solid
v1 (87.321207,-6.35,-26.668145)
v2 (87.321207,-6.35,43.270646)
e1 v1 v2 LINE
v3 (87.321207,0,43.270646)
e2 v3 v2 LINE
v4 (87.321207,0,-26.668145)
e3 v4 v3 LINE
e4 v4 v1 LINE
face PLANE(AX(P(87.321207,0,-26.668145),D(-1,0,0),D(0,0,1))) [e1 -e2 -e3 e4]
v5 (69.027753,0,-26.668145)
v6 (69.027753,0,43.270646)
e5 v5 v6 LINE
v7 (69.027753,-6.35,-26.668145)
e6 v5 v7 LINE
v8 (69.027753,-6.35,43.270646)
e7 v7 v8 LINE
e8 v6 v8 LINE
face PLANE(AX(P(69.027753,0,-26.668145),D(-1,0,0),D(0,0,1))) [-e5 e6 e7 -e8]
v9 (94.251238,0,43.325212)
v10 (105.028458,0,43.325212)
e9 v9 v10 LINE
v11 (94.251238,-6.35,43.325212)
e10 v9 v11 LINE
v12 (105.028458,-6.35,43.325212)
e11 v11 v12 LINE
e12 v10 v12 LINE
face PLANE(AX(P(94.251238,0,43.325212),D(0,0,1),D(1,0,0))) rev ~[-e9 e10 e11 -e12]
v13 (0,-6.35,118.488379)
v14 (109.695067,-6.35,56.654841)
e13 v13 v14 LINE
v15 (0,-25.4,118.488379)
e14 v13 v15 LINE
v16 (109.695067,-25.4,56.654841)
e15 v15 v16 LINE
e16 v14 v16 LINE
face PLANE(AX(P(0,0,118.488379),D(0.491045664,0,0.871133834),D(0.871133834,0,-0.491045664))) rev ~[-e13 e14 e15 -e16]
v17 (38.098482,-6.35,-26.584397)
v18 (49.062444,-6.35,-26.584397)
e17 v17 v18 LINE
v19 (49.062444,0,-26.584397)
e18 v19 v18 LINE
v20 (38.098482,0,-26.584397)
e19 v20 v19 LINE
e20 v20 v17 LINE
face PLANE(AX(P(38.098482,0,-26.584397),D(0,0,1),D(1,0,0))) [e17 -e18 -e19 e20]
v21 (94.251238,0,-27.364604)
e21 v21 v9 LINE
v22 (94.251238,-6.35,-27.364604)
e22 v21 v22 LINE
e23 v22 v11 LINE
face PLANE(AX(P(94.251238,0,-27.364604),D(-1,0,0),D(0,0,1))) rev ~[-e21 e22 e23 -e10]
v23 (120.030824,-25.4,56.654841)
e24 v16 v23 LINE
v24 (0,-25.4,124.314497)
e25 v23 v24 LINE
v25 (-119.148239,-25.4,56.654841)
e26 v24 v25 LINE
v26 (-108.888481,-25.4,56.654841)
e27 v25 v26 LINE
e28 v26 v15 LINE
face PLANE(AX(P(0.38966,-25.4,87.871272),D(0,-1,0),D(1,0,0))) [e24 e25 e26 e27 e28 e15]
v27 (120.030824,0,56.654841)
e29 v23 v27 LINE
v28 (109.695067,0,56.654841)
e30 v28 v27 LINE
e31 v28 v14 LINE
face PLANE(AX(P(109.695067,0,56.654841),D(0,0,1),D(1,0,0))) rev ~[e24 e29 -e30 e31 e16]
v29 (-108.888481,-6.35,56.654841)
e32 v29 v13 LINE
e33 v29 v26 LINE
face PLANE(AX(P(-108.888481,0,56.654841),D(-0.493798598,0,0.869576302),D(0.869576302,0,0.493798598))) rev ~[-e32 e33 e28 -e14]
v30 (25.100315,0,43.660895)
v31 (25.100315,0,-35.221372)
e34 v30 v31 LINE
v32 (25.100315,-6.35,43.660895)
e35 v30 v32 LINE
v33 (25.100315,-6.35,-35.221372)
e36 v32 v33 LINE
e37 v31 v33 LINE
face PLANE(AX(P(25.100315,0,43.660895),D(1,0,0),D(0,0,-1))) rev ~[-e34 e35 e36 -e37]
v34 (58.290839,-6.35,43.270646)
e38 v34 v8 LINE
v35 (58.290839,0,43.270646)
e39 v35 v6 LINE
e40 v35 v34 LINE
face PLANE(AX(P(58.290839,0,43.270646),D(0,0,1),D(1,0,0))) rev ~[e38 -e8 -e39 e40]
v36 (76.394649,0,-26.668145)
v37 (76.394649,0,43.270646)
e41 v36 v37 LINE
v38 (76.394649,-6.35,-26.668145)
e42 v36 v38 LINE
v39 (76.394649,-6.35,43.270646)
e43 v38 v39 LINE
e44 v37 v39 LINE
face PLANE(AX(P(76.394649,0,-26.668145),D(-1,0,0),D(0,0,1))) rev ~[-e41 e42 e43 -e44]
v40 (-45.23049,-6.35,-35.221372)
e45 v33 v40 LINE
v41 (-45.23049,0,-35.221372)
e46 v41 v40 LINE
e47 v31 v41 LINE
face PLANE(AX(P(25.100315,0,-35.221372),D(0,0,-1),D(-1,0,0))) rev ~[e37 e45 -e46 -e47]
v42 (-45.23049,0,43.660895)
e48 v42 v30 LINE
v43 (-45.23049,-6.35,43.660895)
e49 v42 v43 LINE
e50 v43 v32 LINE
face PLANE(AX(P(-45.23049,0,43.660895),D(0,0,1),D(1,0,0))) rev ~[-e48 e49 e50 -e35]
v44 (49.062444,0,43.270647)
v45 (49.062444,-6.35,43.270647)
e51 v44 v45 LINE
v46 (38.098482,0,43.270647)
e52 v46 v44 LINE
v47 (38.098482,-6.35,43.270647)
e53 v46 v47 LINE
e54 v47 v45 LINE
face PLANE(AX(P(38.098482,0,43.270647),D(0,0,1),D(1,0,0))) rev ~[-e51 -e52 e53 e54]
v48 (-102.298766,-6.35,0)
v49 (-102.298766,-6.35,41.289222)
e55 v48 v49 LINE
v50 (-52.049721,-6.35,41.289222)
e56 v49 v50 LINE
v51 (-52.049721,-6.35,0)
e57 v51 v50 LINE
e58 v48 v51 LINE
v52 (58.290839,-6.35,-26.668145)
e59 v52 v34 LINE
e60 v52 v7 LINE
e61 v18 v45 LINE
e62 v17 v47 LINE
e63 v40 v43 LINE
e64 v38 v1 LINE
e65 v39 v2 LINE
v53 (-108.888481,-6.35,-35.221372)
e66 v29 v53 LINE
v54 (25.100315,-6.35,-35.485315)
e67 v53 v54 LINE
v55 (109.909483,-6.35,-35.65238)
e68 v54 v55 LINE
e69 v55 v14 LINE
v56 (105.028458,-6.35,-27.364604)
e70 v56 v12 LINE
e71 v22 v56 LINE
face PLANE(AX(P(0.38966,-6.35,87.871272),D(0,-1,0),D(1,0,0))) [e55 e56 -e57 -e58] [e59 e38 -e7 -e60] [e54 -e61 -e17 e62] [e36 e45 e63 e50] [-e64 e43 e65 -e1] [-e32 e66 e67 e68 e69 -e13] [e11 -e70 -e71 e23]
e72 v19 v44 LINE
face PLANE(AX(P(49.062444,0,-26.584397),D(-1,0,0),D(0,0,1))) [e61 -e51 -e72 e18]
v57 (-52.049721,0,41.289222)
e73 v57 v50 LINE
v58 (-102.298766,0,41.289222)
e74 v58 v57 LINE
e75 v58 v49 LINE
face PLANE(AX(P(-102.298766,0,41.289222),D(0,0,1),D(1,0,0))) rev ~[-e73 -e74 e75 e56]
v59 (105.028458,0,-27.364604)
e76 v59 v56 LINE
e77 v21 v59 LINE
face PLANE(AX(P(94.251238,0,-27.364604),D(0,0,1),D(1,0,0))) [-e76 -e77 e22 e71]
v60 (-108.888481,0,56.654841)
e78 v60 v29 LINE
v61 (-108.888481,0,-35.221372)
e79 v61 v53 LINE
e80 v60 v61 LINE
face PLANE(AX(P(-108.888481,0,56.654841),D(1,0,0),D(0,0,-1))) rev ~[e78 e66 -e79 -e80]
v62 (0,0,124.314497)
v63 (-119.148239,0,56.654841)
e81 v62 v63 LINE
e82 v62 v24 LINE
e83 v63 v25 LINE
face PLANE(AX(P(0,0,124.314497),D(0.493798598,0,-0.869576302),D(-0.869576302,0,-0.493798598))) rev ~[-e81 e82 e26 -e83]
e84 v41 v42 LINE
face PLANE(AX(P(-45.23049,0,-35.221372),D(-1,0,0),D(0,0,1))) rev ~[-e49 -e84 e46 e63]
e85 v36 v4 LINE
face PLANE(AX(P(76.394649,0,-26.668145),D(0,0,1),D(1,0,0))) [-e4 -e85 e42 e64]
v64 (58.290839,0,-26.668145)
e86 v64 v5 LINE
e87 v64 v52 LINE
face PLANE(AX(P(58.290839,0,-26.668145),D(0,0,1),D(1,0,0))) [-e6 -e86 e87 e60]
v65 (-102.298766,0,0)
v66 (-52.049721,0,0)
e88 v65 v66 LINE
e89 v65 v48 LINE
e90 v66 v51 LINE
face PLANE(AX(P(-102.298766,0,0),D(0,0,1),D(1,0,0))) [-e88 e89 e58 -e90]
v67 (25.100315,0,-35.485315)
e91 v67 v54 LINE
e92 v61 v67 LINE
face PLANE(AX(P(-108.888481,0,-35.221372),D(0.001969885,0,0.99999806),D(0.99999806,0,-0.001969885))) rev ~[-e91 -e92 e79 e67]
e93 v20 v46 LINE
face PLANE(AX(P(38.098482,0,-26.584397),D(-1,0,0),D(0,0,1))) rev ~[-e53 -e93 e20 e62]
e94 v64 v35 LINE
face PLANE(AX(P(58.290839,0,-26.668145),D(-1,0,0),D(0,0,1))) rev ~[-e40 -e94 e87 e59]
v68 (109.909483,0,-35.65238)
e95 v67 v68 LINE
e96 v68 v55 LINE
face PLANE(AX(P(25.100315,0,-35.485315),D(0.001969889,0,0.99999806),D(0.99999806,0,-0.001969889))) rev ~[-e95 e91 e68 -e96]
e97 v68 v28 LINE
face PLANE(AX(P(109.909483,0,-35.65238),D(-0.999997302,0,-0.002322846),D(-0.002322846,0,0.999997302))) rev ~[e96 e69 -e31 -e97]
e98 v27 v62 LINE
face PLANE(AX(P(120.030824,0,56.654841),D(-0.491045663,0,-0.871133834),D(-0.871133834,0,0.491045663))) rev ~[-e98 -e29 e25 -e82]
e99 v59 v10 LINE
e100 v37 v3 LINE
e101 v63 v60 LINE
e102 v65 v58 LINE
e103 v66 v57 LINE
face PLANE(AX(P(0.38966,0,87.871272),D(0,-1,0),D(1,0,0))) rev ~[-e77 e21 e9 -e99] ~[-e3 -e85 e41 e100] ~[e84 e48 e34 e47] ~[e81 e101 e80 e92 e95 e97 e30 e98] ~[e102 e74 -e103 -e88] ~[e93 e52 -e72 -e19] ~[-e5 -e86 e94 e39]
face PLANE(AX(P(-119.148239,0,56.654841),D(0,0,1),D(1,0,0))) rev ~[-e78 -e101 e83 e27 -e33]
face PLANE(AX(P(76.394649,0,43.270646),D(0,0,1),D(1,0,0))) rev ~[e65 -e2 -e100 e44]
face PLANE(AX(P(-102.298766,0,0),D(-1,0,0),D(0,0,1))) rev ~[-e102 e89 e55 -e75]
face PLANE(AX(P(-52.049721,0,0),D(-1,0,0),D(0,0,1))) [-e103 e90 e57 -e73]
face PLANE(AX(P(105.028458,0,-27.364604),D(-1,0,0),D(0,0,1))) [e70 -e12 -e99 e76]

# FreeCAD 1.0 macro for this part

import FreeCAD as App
import Part
import Sketcher

V = App.Vector
Q = App.Units.Quantity

doc = App.newDocument("Part")
body = doc.addObject("PartDesign::Body", "Body")

# Sketch on XZ plane
sketch1 = body.newObject("Sketcher::SketchObject", "Sketch")
sketch1.AttachmentSupport = (doc.getObject("XZ_Plane"), [""])
sketch1.MapMode = "FlatFace"
sketch1.addGeometry(Part.LineSegment(V(120, 57, 0), V(0, 124, 0)), False)
sketch1.addGeometry(Part.LineSegment(V(0, 124, 0), V(-119, 57, 0)), False)
sketch1.addGeometry(Part.LineSegment(V(-119, 57, 0), V(-109, 57, 0)), False)
sketch1.addGeometry(Part.LineSegment(V(-109, 57, 0), V(0, 118, 0)), False)
sketch1.addGeometry(Part.LineSegment(V(0, 118, 0), V(110, 57, 0)), False)
sketch1.addGeometry(Part.LineSegment(V(110, 57, 0), V(120, 57, 0)), False)
sketch1.addConstraint(Sketcher.Constraint("Coincident", 0, 2, 1, 1))
sketch1.addConstraint(Sketcher.Constraint("Coincident", 1, 2, 2, 1))
sketch1.addConstraint(Sketcher.Constraint("Coincident", 2, 2, 3, 1))
sketch1.addConstraint(Sketcher.Constraint("Coincident", 3, 2, 4, 1))
sketch1.addConstraint(Sketcher.Constraint("Coincident", 4, 2, 5, 1))
sketch1.addConstraint(Sketcher.Constraint("Coincident", 5, 2, 0, 1))
sketch1.addConstraint(Sketcher.Constraint("Horizontal", 2))
sketch1.addConstraint(Sketcher.Constraint("Horizontal", 5))
sketch1.addConstraint(Sketcher.Constraint("PointOnObject", 0, 2, -2))
sketch1.addConstraint(Sketcher.Constraint("PointOnObject", 3, 2, -2))
sketch1.addConstraint(Sketcher.Constraint("Parallel", 1, 3))
sketch1.addConstraint(Sketcher.Constraint("Parallel", 0, 4))
sketch1.addConstraint(Sketcher.Constraint("Horizontal", 2, 2, 4, 2))
sketch1.addConstraint(Sketcher.Constraint("DistanceX", 2, 1, 2, 2, 10.259758))
sketch1.addConstraint(Sketcher.Constraint("Distance", 1, 137.018728))
sketch1.addConstraint(Sketcher.Constraint("DistanceX", 5, 1, 5, 2, 10.335757))
sketch1.addConstraint(Sketcher.Constraint("DistanceX", 1, 2, -1, 1, 119.148239))
sketch1.addConstraint(Sketcher.Constraint("DistanceY", -1, 1, 1, 2, 56.654841))
pad1 = body.newObject("PartDesign::Pad", "Pad")
pad1.Profile = sketch1
pad1.Length = Q("1 in")

# Sketch on XZ plane
sketch2 = body.newObject("Sketcher::SketchObject", "Sketch001")
sketch2.AttachmentSupport = (doc.getObject("XZ_Plane"), [""])
sketch2.MapMode = "FlatFace"
sketch2.addGeometry(Part.LineSegment(V(120, 57, 0), V(0, 124, 0)), False)
sketch2.addGeometry(Part.LineSegment(V(0, 124, 0), V(-119, 57, 0)), False)
sketch2.addGeometry(Part.LineSegment(V(-119, 57, 0), V(-109, 57, 0)), False)
sketch2.addGeometry(Part.LineSegment(V(-109, 57, 0), V(-109, -35, 0)), False)
sketch2.addGeometry(Part.LineSegment(V(-109, -35, 0), V(25, -35, 0)), False)
sketch2.addGeometry(Part.LineSegment(V(25, -35, 0), V(110, -36, 0)), False)
sketch2.addGeometry(Part.LineSegment(V(110, -36, 0), V(110, 57, 0)), False)
sketch2.addGeometry(Part.LineSegment(V(110, 57, 0), V(120, 57, 0)), False)
sketch2.addGeometry(Part.LineSegment(V(-52, 0, 0), V(-102, 0, 0)), False)
sketch2.addGeometry(Part.LineSegment(V(-102, 0, 0), V(-102, 41, 0)), False)
sketch2.addGeometry(Part.LineSegment(V(-102, 41, 0), V(-52, 41, 0)), False)
sketch2.addGeometry(Part.LineSegment(V(-52, 41, 0), V(-52, 0, 0)), False)
sketch2.addGeometry(Part.LineSegment(V(25, 44, 0), V(25, -35, 0)), False)
sketch2.addGeometry(Part.LineSegment(V(25, -35, 0), V(-45, -35, 0)), False)
sketch2.addGeometry(Part.LineSegment(V(-45, -35, 0), V(-45, 44, 0)), False)
sketch2.addGeometry(Part.LineSegment(V(-45, 44, 0), V(25, 44, 0)), False)
sketch2.addGeometry(Part.LineSegment(V(49, -27, 0), V(38, -27, 0)), False)
sketch2.addGeometry(Part.LineSegment(V(38, -27, 0), V(38, 43, 0)), False)
sketch2.addGeometry(Part.LineSegment(V(38, 43, 0), V(49, 43, 0)), False)
sketch2.addGeometry(Part.LineSegment(V(49, 43, 0), V(49, -27, 0)), False)
sketch2.addGeometry(Part.LineSegment(V(69, -27, 0), V(58, -27, 0)), False)
sketch2.addGeometry(Part.LineSegment(V(58, -27, 0), V(58, 43, 0)), False)
sketch2.addGeometry(Part.LineSegment(V(58, 43, 0), V(69, 43, 0)), False)
sketch2.addGeometry(Part.LineSegment(V(69, 43, 0), V(69, -27, 0)), False)
sketch2.addGeometry(Part.LineSegment(V(87, -27, 0), V(76, -27, 0)), False)
sketch2.addGeometry(Part.LineSegment(V(76, -27, 0), V(76, 43, 0)), False)
sketch2.addGeometry(Part.LineSegment(V(76, 43, 0), V(87, 43, 0)), False)
sketch2.addGeometry(Part.LineSegment(V(87, 43, 0), V(87, -27, 0)), False)
sketch2.addGeometry(Part.LineSegment(V(105, -27, 0), V(94, -27, 0)), False)
sketch2.addGeometry(Part.LineSegment(V(94, -27, 0), V(94, 43, 0)), False)
sketch2.addGeometry(Part.LineSegment(V(94, 43, 0), V(105, 43, 0)), False)
sketch2.addGeometry(Part.LineSegment(V(105, 43, 0), V(105, -27, 0)), False)
sketch2.addConstraint(Sketcher.Constraint("Coincident", 0, 2, 1, 1))
sketch2.addConstraint(Sketcher.Constraint("Coincident", 1, 2, 2, 1))
sketch2.addConstraint(Sketcher.Constraint("Coincident", 2, 2, 3, 1))
sketch2.addConstraint(Sketcher.Constraint("Coincident", 3, 2, 4, 1))
sketch2.addConstraint(Sketcher.Constraint("Coincident", 4, 2, 5, 1))
sketch2.addConstraint(Sketcher.Constraint("Coincident", 5, 2, 6, 1))
sketch2.addConstraint(Sketcher.Constraint("Coincident", 6, 2, 7, 1))
sketch2.addConstraint(Sketcher.Constraint("Coincident", 7, 2, 0, 1))
sketch2.addConstraint(Sketcher.Constraint("Coincident", 8, 2, 9, 1))
sketch2.addConstraint(Sketcher.Constraint("Coincident", 9, 2, 10, 1))
sketch2.addConstraint(Sketcher.Constraint("Coincident", 10, 2, 11, 1))
sketch2.addConstraint(Sketcher.Constraint("Coincident", 11, 2, 8, 1))
sketch2.addConstraint(Sketcher.Constraint("Coincident", 12, 2, 13, 1))
sketch2.addConstraint(Sketcher.Constraint("Coincident", 13, 2, 14, 1))
sketch2.addConstraint(Sketcher.Constraint("Coincident", 14, 2, 15, 1))
sketch2.addConstraint(Sketcher.Constraint("Coincident", 15, 2, 12, 1))
sketch2.addConstraint(Sketcher.Constraint("Coincident", 16, 2, 17, 1))
sketch2.addConstraint(Sketcher.Constraint("Coincident", 17, 2, 18, 1))
sketch2.addConstraint(Sketcher.Constraint("Coincident", 18, 2, 19, 1))
sketch2.addConstraint(Sketcher.Constraint("Coincident", 19, 2, 16, 1))
sketch2.addConstraint(Sketcher.Constraint("Coincident", 20, 2, 21, 1))
sketch2.addConstraint(Sketcher.Constraint("Coincident", 21, 2, 22, 1))
sketch2.addConstraint(Sketcher.Constraint("Coincident", 22, 2, 23, 1))
sketch2.addConstraint(Sketcher.Constraint("Coincident", 23, 2, 20, 1))
sketch2.addConstraint(Sketcher.Constraint("Coincident", 24, 2, 25, 1))
sketch2.addConstraint(Sketcher.Constraint("Coincident", 25, 2, 26, 1))
sketch2.addConstraint(Sketcher.Constraint("Coincident", 26, 2, 27, 1))
sketch2.addConstraint(Sketcher.Constraint("Coincident", 27, 2, 24, 1))
sketch2.addConstraint(Sketcher.Constraint("Coincident", 28, 2, 29, 1))
sketch2.addConstraint(Sketcher.Constraint("Coincident", 29, 2, 30, 1))
sketch2.addConstraint(Sketcher.Constraint("Coincident", 30, 2, 31, 1))
sketch2.addConstraint(Sketcher.Constraint("Coincident", 31, 2, 28, 1))
sketch2.addConstraint(Sketcher.Constraint("Horizontal", 2))
sketch2.addConstraint(Sketcher.Constraint("Vertical", 3))
sketch2.addConstraint(Sketcher.Constraint("Horizontal", 7))
sketch2.addConstraint(Sketcher.Constraint("Horizontal", 8))
sketch2.addConstraint(Sketcher.Constraint("Vertical", 9))
sketch2.addConstraint(Sketcher.Constraint("Horizontal", 10))
sketch2.addConstraint(Sketcher.Constraint("Vertical", 11))
sketch2.addConstraint(Sketcher.Constraint("Vertical", 12))
sketch2.addConstraint(Sketcher.Constraint("Horizontal", 13))
sketch2.addConstraint(Sketcher.Constraint("Vertical", 14))
sketch2.addConstraint(Sketcher.Constraint("Horizontal", 15))
sketch2.addConstraint(Sketcher.Constraint("Horizontal", 16))
sketch2.addConstraint(Sketcher.Constraint("Vertical", 17))
sketch2.addConstraint(Sketcher.Constraint("Horizontal", 18))
sketch2.addConstraint(Sketcher.Constraint("Vertical", 19))
sketch2.addConstraint(Sketcher.Constraint("Horizontal", 20))
sketch2.addConstraint(Sketcher.Constraint("Vertical", 21))
sketch2.addConstraint(Sketcher.Constraint("Horizontal", 22))
sketch2.addConstraint(Sketcher.Constraint("Vertical", 23))
sketch2.addConstraint(Sketcher.Constraint("Horizontal", 24))
sketch2.addConstraint(Sketcher.Constraint("Vertical", 25))
sketch2.addConstraint(Sketcher.Constraint("Horizontal", 26))
sketch2.addConstraint(Sketcher.Constraint("Vertical", 27))
sketch2.addConstraint(Sketcher.Constraint("Horizontal", 28))
sketch2.addConstraint(Sketcher.Constraint("Vertical", 29))
sketch2.addConstraint(Sketcher.Constraint("Horizontal", 30))
sketch2.addConstraint(Sketcher.Constraint("Vertical", 31))
sketch2.addConstraint(Sketcher.Constraint("PointOnObject", 0, 2, -2))
sketch2.addConstraint(Sketcher.Constraint("PointOnObject", 8, 2, -1))
sketch2.addConstraint(Sketcher.Constraint("Parallel", 4, 5))
sketch2.addConstraint(Sketcher.Constraint("Horizontal", 2, 2, 6, 2))
sketch2.addConstraint(Sketcher.Constraint("Horizontal", 3, 2, 12, 2))
sketch2.addConstraint(Sketcher.Constraint("Horizontal", 18, 2, 21, 2))
sketch2.addConstraint(Sketcher.Constraint("Horizontal", 23, 2, 24, 2))
sketch2.addConstraint(Sketcher.Constraint("Horizontal", 22, 2, 25, 2))
sketch2.addConstraint(Sketcher.Constraint("Vertical", 4, 2, 12, 2))
sketch2.addConstraint(Sketcher.Constraint("DistanceX", 28, 2, 28, 1, Q("0.4243 in")))
sketch2.addConstraint(Sketcher.Constraint("DistanceX", 2, 1, 2, 2, 10.259758))
sketch2.addConstraint(Sketcher.Constraint("DistanceY", 21, 1, 21, 2, 69.938791))
sketch2.addConstraint(Sketcher.Constraint("DistanceX", 16, 2, 5, 2, 71.811001))
sketch2.addConstraint(Sketcher.Constraint("DistanceX", 20, 2, 28, 2, 35.960399))
sketch2.addConstraint(Sketcher.Constraint("Distance", 1, 137.018728))
sketch2.addConstraint(Sketcher.Constraint("Distance", 6, 92.30747))
sketch2.addConstraint(Sketcher.Constraint("DistanceX", 7, 1, 7, 2, 10.335757))
sketch2.addConstraint(Sketcher.Constraint("DistanceX", 8, 2, 8, 1, 50.249045))
sketch2.addConstraint(Sketcher.Constraint("DistanceX", 13, 2, 13, 1, 70.330805))
sketch2.addConstraint(Sketcher.Constraint("DistanceX", 16, 2, 16, 1, 10.963962))
sketch2.addConstraint(Sketcher.Constraint("DistanceX", 20, 2, 20, 1, 10.736913))
sketch2.addConstraint(Sketcher.Constraint("DistanceX", 24, 2, 24, 1, 10.926557))
sketch2.addConstraint(Sketcher.Constraint("DistanceY", 3, 2, 3, 1, 91.876213))
sketch2.addConstraint(Sketcher.Constraint("DistanceY", 9, 1, 9, 2, 41.289222))
sketch2.addConstraint(Sketcher.Constraint("DistanceY", 12, 2, 12, 1, 78.882267))
sketch2.addConstraint(Sketcher.Constraint("DistanceY", 17, 1, 17, 2, 69.855044))
sketch2.addConstraint(Sketcher.Constraint("DistanceY", 29, 1, 29, 2, 70.689816))
sketch2.addConstraint(Sketcher.Constraint("DistanceX", 1, 2, -1, 1, 119.148239))
sketch2.addConstraint(Sketcher.Constraint("DistanceY", -1, 1, 1, 2, 56.654841))
sketch2.addConstraint(Sketcher.Constraint("DistanceX", 10, 2, -1, 1, 52.049721))
sketch2.addConstraint(Sketcher.Constraint("DistanceX", 13, 2, -1, 1, 45.23049))
sketch2.addConstraint(Sketcher.Constraint("DistanceX", -1, 1, 16, 2, 38.098482))
sketch2.addConstraint(Sketcher.Constraint("DistanceX", -1, 1, 20, 2, 58.290839))
sketch2.addConstraint(Sketcher.Constraint("DistanceX", -1, 1, 24, 2, 76.394649))
sketch2.addConstraint(Sketcher.Constraint("DistanceX", 4, 2, 6, 2, 84.594752))
sketch2.addConstraint(Sketcher.Constraint("DistanceY", 4, 2, 16, 2, 8.900918))
sketch2.addConstraint(Sketcher.Constraint("DistanceY", 28, 2, 27, 2, 0.696459))
pad2 = body.newObject("PartDesign::Pad", "Pad001")
pad2.Profile = sketch2
pad2.Length = Q("0.25 in")

doc.recompute()
